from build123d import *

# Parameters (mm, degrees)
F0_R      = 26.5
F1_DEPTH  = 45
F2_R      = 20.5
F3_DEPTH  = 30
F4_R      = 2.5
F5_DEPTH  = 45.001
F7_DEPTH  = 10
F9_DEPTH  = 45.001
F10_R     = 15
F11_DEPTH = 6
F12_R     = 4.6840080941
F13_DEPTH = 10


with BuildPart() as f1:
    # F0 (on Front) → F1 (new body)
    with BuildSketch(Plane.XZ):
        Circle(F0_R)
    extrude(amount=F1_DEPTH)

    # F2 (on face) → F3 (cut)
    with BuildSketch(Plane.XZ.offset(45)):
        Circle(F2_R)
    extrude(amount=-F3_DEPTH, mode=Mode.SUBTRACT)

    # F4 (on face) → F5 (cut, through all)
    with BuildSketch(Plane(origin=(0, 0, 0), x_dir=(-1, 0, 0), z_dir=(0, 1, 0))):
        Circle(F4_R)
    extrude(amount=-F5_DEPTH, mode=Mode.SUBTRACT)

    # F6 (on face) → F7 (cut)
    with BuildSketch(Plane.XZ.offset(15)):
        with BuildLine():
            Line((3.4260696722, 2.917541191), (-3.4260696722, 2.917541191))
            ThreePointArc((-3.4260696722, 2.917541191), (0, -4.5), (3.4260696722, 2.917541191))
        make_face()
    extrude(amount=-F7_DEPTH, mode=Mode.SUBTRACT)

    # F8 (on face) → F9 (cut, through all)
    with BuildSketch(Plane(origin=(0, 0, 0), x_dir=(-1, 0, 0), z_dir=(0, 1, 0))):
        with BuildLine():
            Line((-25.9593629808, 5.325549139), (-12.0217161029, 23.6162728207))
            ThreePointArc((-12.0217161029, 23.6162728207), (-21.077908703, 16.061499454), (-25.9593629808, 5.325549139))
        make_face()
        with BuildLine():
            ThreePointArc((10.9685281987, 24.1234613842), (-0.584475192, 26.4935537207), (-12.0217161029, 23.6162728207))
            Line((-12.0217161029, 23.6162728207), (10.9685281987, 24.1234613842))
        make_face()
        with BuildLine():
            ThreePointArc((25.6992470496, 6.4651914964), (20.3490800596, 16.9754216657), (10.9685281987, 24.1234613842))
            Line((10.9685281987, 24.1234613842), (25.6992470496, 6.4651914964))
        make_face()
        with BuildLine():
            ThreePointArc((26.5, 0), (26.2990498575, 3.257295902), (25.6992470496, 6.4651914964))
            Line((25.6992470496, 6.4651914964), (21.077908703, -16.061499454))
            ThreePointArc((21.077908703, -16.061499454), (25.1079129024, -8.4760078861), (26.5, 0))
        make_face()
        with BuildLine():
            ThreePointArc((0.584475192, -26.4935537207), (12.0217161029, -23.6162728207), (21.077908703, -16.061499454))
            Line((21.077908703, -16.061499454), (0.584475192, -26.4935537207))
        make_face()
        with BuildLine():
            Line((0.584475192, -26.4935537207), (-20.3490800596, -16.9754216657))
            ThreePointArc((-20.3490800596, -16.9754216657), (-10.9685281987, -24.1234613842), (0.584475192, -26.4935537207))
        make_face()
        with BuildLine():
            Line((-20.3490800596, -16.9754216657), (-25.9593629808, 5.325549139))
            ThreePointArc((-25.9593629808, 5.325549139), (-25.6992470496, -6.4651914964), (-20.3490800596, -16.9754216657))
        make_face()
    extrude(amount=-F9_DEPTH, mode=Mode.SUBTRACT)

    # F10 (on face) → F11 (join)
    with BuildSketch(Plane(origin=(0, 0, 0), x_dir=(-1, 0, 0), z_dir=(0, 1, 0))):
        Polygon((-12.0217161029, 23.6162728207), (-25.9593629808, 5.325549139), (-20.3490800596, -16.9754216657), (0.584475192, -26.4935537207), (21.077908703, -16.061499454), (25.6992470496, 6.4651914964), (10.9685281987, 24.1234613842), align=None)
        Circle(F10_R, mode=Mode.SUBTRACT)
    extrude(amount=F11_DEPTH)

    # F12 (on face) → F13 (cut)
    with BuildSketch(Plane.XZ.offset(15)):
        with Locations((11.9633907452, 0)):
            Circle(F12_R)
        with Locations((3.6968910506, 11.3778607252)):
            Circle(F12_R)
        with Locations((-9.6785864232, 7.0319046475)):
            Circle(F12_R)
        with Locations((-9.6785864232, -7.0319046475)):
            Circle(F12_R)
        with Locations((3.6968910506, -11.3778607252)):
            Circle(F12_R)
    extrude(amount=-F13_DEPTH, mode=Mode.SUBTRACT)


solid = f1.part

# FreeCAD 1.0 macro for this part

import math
import FreeCAD as App
import Part
import Sketcher

V = App.Vector


def add_polygon(sketch, points):
    """Adds a closed chain of lines whose ends are joined by coincident constraints."""
    first, n = sketch.GeometryCount, len(points)
    for a, b in zip(points, points[1:] + points[:1]):
        sketch.addGeometry(Part.LineSegment(App.Vector(*a, 0), App.Vector(*b, 0)), False)
    for i in range(n):
        sketch.addConstraint(Sketcher.Constraint("Coincident", first + i, 2, first + (i + 1) % n, 1))

doc = App.newDocument("Part")
body = doc.addObject("PartDesign::Body", "Body")

# Sketch on XZ plane
sketch1 = body.newObject("Sketcher::SketchObject", "Sketch")
sketch1.AttachmentSupport = (doc.getObject("XZ_Plane"), [""])
sketch1.MapMode = "FlatFace"
sketch1.addGeometry(Part.Circle(V(0, 0, 0), V(0, 0, 1), 26.5), False)
sketch1.addConstraint([
    Sketcher.Constraint("Coincident", 0, 3, -1, 1),
    Sketcher.Constraint("Diameter", 0, 53.0),
])
pad1 = body.newObject("PartDesign::Pad", "Pad")
pad1.Profile = sketch1
pad1.Length = 45

# Sketch on XZ plane
sketch2 = body.newObject("Sketcher::SketchObject", "Sketch001")
sketch2.AttachmentSupport = (doc.getObject("XZ_Plane"), [""])
sketch2.MapMode = "FlatFace"
sketch2.AttachmentOffset = App.Placement(V(0, 0, 45), App.Rotation())
sketch2.addGeometry(Part.Circle(V(0, 0, 0), V(0, 0, 1), 20.5), False)
sketch2.addConstraint([
    Sketcher.Constraint("Coincident", 0, 3, -1, 1),
    Sketcher.Constraint("Diameter", 0, 41.0),
])
pocket1 = body.newObject("PartDesign::Pocket", "Pocket")
pocket1.Profile = sketch2
pocket1.Length = 30

# Sketch on XZ plane
sketch3 = body.newObject("Sketcher::SketchObject", "Sketch002")
sketch3.AttachmentSupport = (doc.getObject("XZ_Plane"), [""])
sketch3.MapMode = "FlatFace"
sketch3.addGeometry(Part.Circle(V(0, 0, 0), V(0, 0, 1), 2.5), False)
sketch3.addConstraint([
    Sketcher.Constraint("Coincident", 0, 3, -1, 1),
    Sketcher.Constraint("Diameter", 0, 5.0),
])
pocket2 = body.newObject("PartDesign::Pocket", "Pocket001")
pocket2.Profile = sketch3
pocket2.Type = "ThroughAll"
pocket2.Reversed = True

# Sketch on XZ plane
sketch4 = body.newObject("Sketcher::SketchObject", "Sketch003")
sketch4.AttachmentSupport = (doc.getObject("XZ_Plane"), [""])
sketch4.MapMode = "FlatFace"
sketch4.AttachmentOffset = App.Placement(V(0, 0, 15), App.Rotation())
sketch4.addGeometry([
    Part.LineSegment(V(3.42607, 2.917541, 0), V(-3.42607, 2.917541, 0)),
    Part.ArcOfCircle(Part.Circle(V(0, 0, 0), V(0, 0, 1), 4.5), math.radians(139.583251), math.radians(400.416749)),
], False)
sketch4.addConstraint([
    Sketcher.Constraint("Coincident", 0, 1, 1, 2),
    Sketcher.Constraint("Coincident", 1, 1, 0, 2),
    Sketcher.Constraint("Horizontal", 0),
    Sketcher.Constraint("Coincident", 1, 3, -1, 1),
    Sketcher.Constraint("Radius", 1, 4.5),
    Sketcher.Constraint("DistanceX", 0, 2, 0, 1, 6.852139),
])
pocket3 = body.newObject("PartDesign::Pocket", "Pocket002")
pocket3.Profile = sketch4
pocket3.Length = 10

# Sketch on XZ plane
sketch5 = body.newObject("Sketcher::SketchObject", "Sketch004")
sketch5.AttachmentSupport = (doc.getObject("XZ_Plane"), [""])
sketch5.MapMode = "FlatFace"
sketch5.addGeometry([
    Part.LineSegment(V(25.959363, 5.325549, 0), V(12.021716, 23.616273, 0)),  # 0
    Part.ArcOfCircle(Part.Circle(V(0, 0, 0), V(0, 0, 1), 26.5), math.radians(11.593344), math.radians(63.021915)),  # 1
    Part.ArcOfCircle(Part.Circle(V(0, 0, 0), V(0, 0, 1), 26.5), math.radians(63.021915), math.radians(114.450487)),  # 2
    Part.LineSegment(V(12.021716, 23.616273, 0), V(-10.968528, 24.123461, 0)),  # 3
    Part.ArcOfCircle(Part.Circle(V(0, 0, 0), V(0, 0, 1), 26.5), math.radians(114.450487), math.radians(165.879058)),  # 4
    Part.LineSegment(V(-10.968528, 24.123461, 0), V(-25.699247, 6.465191, 0)),  # 5
    Part.ArcOfCircle(Part.Circle(V(0, 0, 0), V(0, 0, 1), 26.5), math.radians(165.879058), math.radians(180)),  # 6
    Part.LineSegment(V(-25.699247, 6.465191, 0), V(-21.077909, -16.061499, 0)),  # 7
    Part.ArcOfCircle(Part.Circle(V(0, 0, 0), V(0, 0, 1), 26.5), math.radians(180), math.radians(217.307629)),  # 8
    Part.ArcOfCircle(Part.Circle(V(0, 0, 0), V(0, 0, 1), 26.5), math.radians(-142.692371), math.radians(-91.263799)),  # 9
    Part.LineSegment(V(-21.077909, -16.061499, 0), V(-0.584475, -26.493554, 0)),  # 10
    Part.LineSegment(V(-0.584475, -26.493554, 0), V(20.34908, -16.975422, 0)),  # 11
    Part.ArcOfCircle(Part.Circle(V(0, 0, 0), V(0, 0, 1), 26.5), math.radians(-91.263799), math.radians(-39.835228)),  # 12
    Part.LineSegment(V(20.34908, -16.975422, 0), V(25.959363, 5.325549, 0)),  # 13
    Part.ArcOfCircle(Part.Circle(V(0, 0, 0), V(0, 0, 1), 26.5), math.radians(-39.835228), math.radians(11.593344)),  # 14
], False)
sketch5.addConstraint([
    Sketcher.Constraint("Coincident", 0, 1, 1, 1),
    Sketcher.Constraint("Coincident", 1, 2, 0, 2),
    Sketcher.Constraint("Coincident", 2, 1, 3, 1),
    Sketcher.Constraint("Coincident", 3, 2, 2, 2),
    Sketcher.Constraint("Coincident", 4, 1, 5, 1),
    Sketcher.Constraint("Coincident", 5, 2, 4, 2),
    Sketcher.Constraint("Coincident", 6, 1, 7, 1),
    Sketcher.Constraint("Coincident", 7, 2, 8, 2),
    Sketcher.Constraint("Tangent", 8, 1, 6, 2),
    Sketcher.Constraint("Coincident", 9, 1, 10, 1),
    Sketcher.Constraint("Coincident", 10, 2, 9, 2),
    Sketcher.Constraint("Coincident", 11, 1, 12, 1),
    Sketcher.Constraint("Coincident", 12, 2, 11, 2),
    Sketcher.Constraint("Coincident", 13, 1, 14, 1),
    Sketcher.Constraint("Coincident", 14, 2, 13, 2),
    Sketcher.Constraint("Coincident", 1, 3, -1, 1),
    Sketcher.Constraint("Coincident", 2, 3, -1, 1),
    Sketcher.Constraint("Coincident", 4, 3, -1, 1),
    Sketcher.Constraint("Coincident", 6, 3, -1, 1),
    Sketcher.Constraint("Coincident", 9, 3, -1, 1),
    Sketcher.Constraint("Coincident", 12, 3, -1, 1),
    Sketcher.Constraint("Coincident", 14, 3, -1, 1),
    Sketcher.Constraint("Coincident", 2, 1, 1, 2),
    Sketcher.Constraint("Coincident", 4, 1, 3, 2),
    Sketcher.Constraint("Coincident", 6, 1, 5, 2),
    Sketcher.Constraint("Coincident", 9, 1, 7, 2),
    Sketcher.Constraint("Coincident", 11, 1, 10, 2),
    Sketcher.Constraint("Coincident", 13, 1, 12, 2),
    Sketcher.Constraint("Coincident", 14, 2, 0, 1),
    Sketcher.Constraint("PointOnObject", 8, 1, -1),
    Sketcher.Constraint("Equal", 0, 3),
    Sketcher.Constraint("Equal", 3, 5),
    Sketcher.Constraint("Equal", 5, 7),
    Sketcher.Constraint("Equal", 7, 10),
    Sketcher.Constraint("Equal", 10, 11),
    Sketcher.Constraint("Equal", 11, 13),
    Sketcher.Constraint("Radius", 1, 26.5),
    Sketcher.Constraint("DistanceY", 7, 2, -1, 1, 16.061499),
])
pocket4 = body.newObject("PartDesign::Pocket", "Pocket003")
pocket4.Profile = sketch5
pocket4.Type = "ThroughAll"
pocket4.Reversed = True

# Sketch on XZ plane
sketch6 = body.newObject("Sketcher::SketchObject", "Sketch005")
sketch6.AttachmentSupport = (doc.getObject("XZ_Plane"), [""])
sketch6.MapMode = "FlatFace"
add_polygon(sketch6, [(12.021716, 23.616273), (25.959363, 5.325549), (20.34908, -16.975422), (-0.584475, -26.493554), (-21.077909, -16.061499), (-25.699247, 6.465191), (-10.968528, 24.123461)])  # lines 0-6
sketch6.addGeometry(Part.Circle(V(0, 0, 0), V(0, 0, 1), 15), False)  # 7
sketch6.addConstraint([
    Sketcher.Constraint("Coincident", 7, 3, -1, 1),
    Sketcher.Constraint("Equal", 0, 1),
    Sketcher.Constraint("Equal", 1, 2),
    Sketcher.Constraint("Equal", 2, 3),
    Sketcher.Constraint("Equal", 3, 4),
    Sketcher.Constraint("Equal", 4, 5),
    Sketcher.Constraint("Equal", 5, 6),
    Sketcher.Constraint("Diameter", 7, 30.0),
    Sketcher.Constraint("DistanceY", 3, 2, -1, 1, 16.061499),
    Sketcher.Constraint("Distance", 0, 22.995838),
    Sketcher.Constraint("DistanceY", -1, 1, 0, 2, 5.325549),
    Sketcher.Constraint("DistanceX", -1, 1, 1, 2, 20.34908),
    Sketcher.Constraint("DistanceY", 1, 2, -1, 1, 16.975422),
    Sketcher.Constraint("DistanceX", 3, 2, -1, 1, 21.077909),
    Sketcher.Constraint("DistanceY", -1, 1, 4, 2, 6.465191),
    Sketcher.Constraint("DistanceX", 5, 2, -1, 1, 10.968528),
])
pad2 = body.newObject("PartDesign::Pad", "Pad001")
pad2.Profile = sketch6
pad2.Length = 6
pad2.Reversed = True

# Sketch on XZ plane
sketch7 = body.newObject("Sketcher::SketchObject", "Sketch006")
sketch7.AttachmentSupport = (doc.getObject("XZ_Plane"), [""])
sketch7.MapMode = "FlatFace"
sketch7.AttachmentOffset = App.Placement(V(0, 0, 15), App.Rotation())
sketch7.addGeometry([
    Part.Circle(V(11.963391, 0, 0), V(0, 0, 1), 4.684008),  # 0
    Part.Circle(V(3.696891, 11.377861, 0), V(0, 0, 1), 4.684008),  # 1
    Part.Circle(V(-9.678586, 7.031905, 0), V(0, 0, 1), 4.684008),  # 2
    Part.Circle(V(-9.678586, -7.031905, 0), V(0, 0, 1), 4.684008),  # 3
    Part.Circle(V(3.696891, -11.377861, 0), V(0, 0, 1), 4.684008),  # 4
], False)
sketch7.addConstraint([
    Sketcher.Constraint("Equal", 0, 1),
    Sketcher.Constraint("Equal", 1, 2),
    Sketcher.Constraint("Equal", 2, 3),
    Sketcher.Constraint("Equal", 3, 4),
    Sketcher.Constraint("Symmetric", 2, 3, 3, 3, -1),
    Sketcher.Constraint("Symmetric", 1, 3, 4, 3, -1),
    Sketcher.Constraint("PointOnObject", 0, 3, -1),
    Sketcher.Constraint("Diameter", 0, 9.368016),
    Sketcher.Constraint("DistanceX", 1, 3, 0, 3, 8.2665),
    Sketcher.Constraint("DistanceX", -1, 1, 0, 3, 11.963391),
    Sketcher.Constraint("DistanceY", -1, 1, 1, 3, 11.377861),
    Sketcher.Constraint("DistanceY", 3, 3, 2, 3, 14.063809),
    Sketcher.Constraint("DistanceX", 2, 3, -1, 1, 9.678586),
])
pocket5 = body.newObject("PartDesign::Pocket", "Pocket004")
pocket5.Profile = sketch7
pocket5.Length = 10

doc.recompute()
